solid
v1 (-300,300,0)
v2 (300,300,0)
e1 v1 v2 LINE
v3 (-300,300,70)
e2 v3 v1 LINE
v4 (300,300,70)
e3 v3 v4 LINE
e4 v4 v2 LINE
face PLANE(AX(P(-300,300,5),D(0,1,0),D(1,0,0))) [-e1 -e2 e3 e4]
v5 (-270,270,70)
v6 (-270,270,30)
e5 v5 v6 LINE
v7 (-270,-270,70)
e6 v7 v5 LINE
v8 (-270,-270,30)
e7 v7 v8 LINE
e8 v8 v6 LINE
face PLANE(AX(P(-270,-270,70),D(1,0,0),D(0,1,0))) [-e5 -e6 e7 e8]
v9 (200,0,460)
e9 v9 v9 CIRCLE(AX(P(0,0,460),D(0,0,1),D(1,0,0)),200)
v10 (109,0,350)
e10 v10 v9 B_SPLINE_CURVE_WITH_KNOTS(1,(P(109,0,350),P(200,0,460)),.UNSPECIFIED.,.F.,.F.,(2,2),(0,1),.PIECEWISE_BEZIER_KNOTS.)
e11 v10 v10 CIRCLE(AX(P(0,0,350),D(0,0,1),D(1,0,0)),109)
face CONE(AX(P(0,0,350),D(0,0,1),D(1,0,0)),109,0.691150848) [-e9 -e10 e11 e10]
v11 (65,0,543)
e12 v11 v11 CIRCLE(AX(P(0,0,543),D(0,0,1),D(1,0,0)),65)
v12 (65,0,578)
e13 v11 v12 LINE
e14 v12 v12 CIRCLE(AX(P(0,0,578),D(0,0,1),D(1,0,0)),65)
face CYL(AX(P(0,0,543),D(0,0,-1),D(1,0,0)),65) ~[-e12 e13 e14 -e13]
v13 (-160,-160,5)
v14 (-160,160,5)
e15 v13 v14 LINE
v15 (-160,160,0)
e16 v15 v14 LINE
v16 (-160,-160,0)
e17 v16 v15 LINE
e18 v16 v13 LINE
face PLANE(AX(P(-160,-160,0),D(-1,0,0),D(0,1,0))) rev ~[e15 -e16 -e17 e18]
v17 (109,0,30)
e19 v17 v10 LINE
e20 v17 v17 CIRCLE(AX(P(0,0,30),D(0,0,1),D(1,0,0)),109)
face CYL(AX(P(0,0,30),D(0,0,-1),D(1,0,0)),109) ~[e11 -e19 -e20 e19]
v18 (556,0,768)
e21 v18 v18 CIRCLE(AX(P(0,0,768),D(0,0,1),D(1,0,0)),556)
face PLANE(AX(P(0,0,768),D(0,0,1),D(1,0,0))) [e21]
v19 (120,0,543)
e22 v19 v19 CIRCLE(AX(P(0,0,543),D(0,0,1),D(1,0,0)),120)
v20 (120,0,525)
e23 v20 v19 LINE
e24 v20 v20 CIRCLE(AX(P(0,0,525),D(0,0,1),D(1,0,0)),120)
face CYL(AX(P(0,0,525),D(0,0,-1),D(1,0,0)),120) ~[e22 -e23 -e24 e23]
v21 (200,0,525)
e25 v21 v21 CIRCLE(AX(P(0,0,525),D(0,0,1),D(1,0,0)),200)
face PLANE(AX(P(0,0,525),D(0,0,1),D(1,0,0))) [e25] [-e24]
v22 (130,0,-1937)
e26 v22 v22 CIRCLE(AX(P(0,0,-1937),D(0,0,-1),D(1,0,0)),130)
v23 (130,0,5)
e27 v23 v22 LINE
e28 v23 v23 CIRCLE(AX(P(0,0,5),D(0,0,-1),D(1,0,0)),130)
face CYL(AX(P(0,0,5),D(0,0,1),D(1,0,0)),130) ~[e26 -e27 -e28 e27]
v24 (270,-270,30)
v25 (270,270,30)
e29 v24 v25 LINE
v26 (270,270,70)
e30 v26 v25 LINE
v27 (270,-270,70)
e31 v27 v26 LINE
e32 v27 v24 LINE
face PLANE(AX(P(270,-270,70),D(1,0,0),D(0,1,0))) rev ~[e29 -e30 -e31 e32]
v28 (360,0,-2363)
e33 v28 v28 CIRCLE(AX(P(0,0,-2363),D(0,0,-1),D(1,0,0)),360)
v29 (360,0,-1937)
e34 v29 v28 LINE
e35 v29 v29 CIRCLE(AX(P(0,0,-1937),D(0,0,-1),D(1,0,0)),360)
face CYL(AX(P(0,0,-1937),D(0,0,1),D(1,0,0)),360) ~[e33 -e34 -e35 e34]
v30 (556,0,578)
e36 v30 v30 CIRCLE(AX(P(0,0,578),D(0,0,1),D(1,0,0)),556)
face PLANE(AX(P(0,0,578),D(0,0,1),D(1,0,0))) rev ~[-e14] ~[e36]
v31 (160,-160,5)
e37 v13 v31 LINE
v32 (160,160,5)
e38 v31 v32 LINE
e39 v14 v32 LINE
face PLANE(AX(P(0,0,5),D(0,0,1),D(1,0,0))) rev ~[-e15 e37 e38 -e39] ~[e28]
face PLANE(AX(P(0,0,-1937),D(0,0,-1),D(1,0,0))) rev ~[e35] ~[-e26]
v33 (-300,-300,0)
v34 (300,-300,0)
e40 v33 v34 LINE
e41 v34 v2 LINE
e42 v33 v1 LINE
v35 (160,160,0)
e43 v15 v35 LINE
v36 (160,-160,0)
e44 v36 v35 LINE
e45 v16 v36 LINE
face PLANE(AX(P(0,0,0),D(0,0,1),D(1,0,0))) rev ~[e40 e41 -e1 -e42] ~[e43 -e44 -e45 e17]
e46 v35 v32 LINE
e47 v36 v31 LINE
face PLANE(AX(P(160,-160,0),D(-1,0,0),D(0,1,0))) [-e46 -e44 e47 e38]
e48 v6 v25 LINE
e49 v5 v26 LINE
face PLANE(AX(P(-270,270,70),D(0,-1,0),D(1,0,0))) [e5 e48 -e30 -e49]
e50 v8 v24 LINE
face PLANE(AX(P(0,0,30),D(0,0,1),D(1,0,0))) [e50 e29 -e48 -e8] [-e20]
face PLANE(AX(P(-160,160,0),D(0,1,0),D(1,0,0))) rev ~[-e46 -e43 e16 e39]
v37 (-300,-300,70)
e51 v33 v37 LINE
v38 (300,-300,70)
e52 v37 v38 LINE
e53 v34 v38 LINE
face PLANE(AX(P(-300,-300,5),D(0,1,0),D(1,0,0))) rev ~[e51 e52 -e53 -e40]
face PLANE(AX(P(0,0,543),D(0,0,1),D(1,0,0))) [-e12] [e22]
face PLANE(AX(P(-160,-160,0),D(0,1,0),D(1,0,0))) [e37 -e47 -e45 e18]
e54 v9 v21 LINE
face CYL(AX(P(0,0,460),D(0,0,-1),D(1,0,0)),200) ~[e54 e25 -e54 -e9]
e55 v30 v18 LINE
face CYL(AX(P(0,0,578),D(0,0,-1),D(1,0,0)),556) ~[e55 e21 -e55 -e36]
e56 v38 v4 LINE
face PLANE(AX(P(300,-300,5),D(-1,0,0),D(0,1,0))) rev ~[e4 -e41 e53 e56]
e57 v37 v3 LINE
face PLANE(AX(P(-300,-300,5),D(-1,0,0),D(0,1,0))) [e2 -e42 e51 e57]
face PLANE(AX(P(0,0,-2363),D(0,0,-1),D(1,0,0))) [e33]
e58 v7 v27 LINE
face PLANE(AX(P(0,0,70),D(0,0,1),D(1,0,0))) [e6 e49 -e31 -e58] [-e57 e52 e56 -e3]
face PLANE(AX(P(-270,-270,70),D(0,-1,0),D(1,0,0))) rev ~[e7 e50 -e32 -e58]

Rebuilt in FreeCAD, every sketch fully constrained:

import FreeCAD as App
import Part
import Sketcher
Q = App.Units.Quantity

doc = App.newDocument("Part")
body = doc.addObject("PartDesign::Body", "Body")

sketch1 = doc.addObject("Sketcher::SketchObject", "Sketch")
body.addObject(sketch1)
sketch1.AttachmentSupport = (doc.XY_Plane, [""])
sketch1.MapMode = "FlatFace"
sketch1.addGeometry(Part.LineSegment(App.Vector(-300, 300, 0), App.Vector(-300, -300, 0)), False)
sketch1.addGeometry(Part.LineSegment(App.Vector(-300, -300, 0), App.Vector(300, -300, 0)), False)
sketch1.addGeometry(Part.LineSegment(App.Vector(300, -300, 0), App.Vector(300, 300, 0)), False)
sketch1.addGeometry(Part.LineSegment(App.Vector(300, 300, 0), App.Vector(-300, 300, 0)), False)
sketch1.addGeometry(Part.LineSegment(App.Vector(160, -160, 0), App.Vector(-160, -160, 0)), False)
sketch1.addGeometry(Part.LineSegment(App.Vector(-160, -160, 0), App.Vector(-160, 160, 0)), False)
sketch1.addGeometry(Part.LineSegment(App.Vector(-160, 160, 0), App.Vector(160, 160, 0)), False)
sketch1.addGeometry(Part.LineSegment(App.Vector(160, 160, 0), App.Vector(160, -160, 0)), False)
sketch1.addConstraint(Sketcher.Constraint("Coincident", 0, 2, 1, 1))
sketch1.addConstraint(Sketcher.Constraint("Coincident", 1, 2, 2, 1))
sketch1.addConstraint(Sketcher.Constraint("Coincident", 2, 2, 3, 1))
sketch1.addConstraint(Sketcher.Constraint("Coincident", 3, 2, 0, 1))
sketch1.addConstraint(Sketcher.Constraint("Coincident", 4, 2, 5, 1))
sketch1.addConstraint(Sketcher.Constraint("Coincident", 5, 2, 6, 1))
sketch1.addConstraint(Sketcher.Constraint("Coincident", 6, 2, 7, 1))
sketch1.addConstraint(Sketcher.Constraint("Coincident", 7, 2, 4, 1))
sketch1.addConstraint(Sketcher.Constraint("Vertical", 0))
sketch1.addConstraint(Sketcher.Constraint("Horizontal", 1))
sketch1.addConstraint(Sketcher.Constraint("Vertical", 2))
sketch1.addConstraint(Sketcher.Constraint("Horizontal", 3))
sketch1.addConstraint(Sketcher.Constraint("Horizontal", 4))
sketch1.addConstraint(Sketcher.Constraint("Vertical", 5))
sketch1.addConstraint(Sketcher.Constraint("Horizontal", 6))
sketch1.addConstraint(Sketcher.Constraint("Vertical", 7))
sketch1.addConstraint(Sketcher.Constraint("Symmetric", 0, 2, 2, 2, -1, 1))
sketch1.addConstraint(Sketcher.Constraint("Symmetric", 4, 2, 6, 2, -1, 1))
sketch1.addConstraint(Sketcher.Constraint("Equal", 3, 0))
sketch1.addConstraint(Sketcher.Constraint("Equal", 6, 5))
sketch1.addConstraint(Sketcher.Constraint("DistanceX", 1, 1, 1, 2, Q("600 mm")))
sketch1.addConstraint(Sketcher.Constraint("DistanceX", 4, 2, 4, 1, Q("320 mm")))
pad1 = doc.addObject("PartDesign::Pad", "Pad")
body.addObject(pad1)
pad1.Profile = sketch1
pad1.Length = 5

sketch2 = doc.addObject("Sketcher::SketchObject", "Sketch001")
body.addObject(sketch2)
sketch2.AttachmentSupport = (doc.XY_Plane, [""])
sketch2.MapMode = "FlatFace"
sketch2.AttachmentOffset = App.Placement(App.Vector(0, 0, 5), App.Rotation())
sketch2.addGeometry(Part.LineSegment(App.Vector(-300, 300, 0), App.Vector(-300, -300, 0)), False)
sketch2.addGeometry(Part.LineSegment(App.Vector(-300, -300, 0), App.Vector(300, -300, 0)), False)
sketch2.addGeometry(Part.LineSegment(App.Vector(300, -300, 0), App.Vector(300, 300, 0)), False)
sketch2.addGeometry(Part.LineSegment(App.Vector(300, 300, 0), App.Vector(-300, 300, 0)), False)
sketch2.addConstraint(Sketcher.Constraint("Coincident", 0, 2, 1, 1))
sketch2.addConstraint(Sketcher.Constraint("Coincident", 1, 2, 2, 1))
sketch2.addConstraint(Sketcher.Constraint("Coincident", 2, 2, 3, 1))
sketch2.addConstraint(Sketcher.Constraint("Coincident", 3, 2, 0, 1))
sketch2.addConstraint(Sketcher.Constraint("Vertical", 0))
sketch2.addConstraint(Sketcher.Constraint("Horizontal", 1))
sketch2.addConstraint(Sketcher.Constraint("Vertical", 2))
sketch2.addConstraint(Sketcher.Constraint("Horizontal", 3))
sketch2.addConstraint(Sketcher.Constraint("Symmetric", 0, 2, 2, 2, -1, 1))
sketch2.addConstraint(Sketcher.Constraint("Equal", 3, 0))
sketch2.addConstraint(Sketcher.Constraint("DistanceX", 1, 1, 1, 2, Q("600 mm")))
pad2 = doc.addObject("PartDesign::Pad", "Pad001")
body.addObject(pad2)
pad2.Profile = sketch2
pad2.Length = 65

sketch3 = doc.addObject("Sketcher::SketchObject", "Sketch002")
body.addObject(sketch3)
sketch3.AttachmentSupport = (doc.XY_Plane, [""])
sketch3.MapMode = "FlatFace"
sketch3.AttachmentOffset = App.Placement(App.Vector(0, 0, 70), App.Rotation())
sketch3.addGeometry(Part.LineSegment(App.Vector(-270, 270, 0), App.Vector(-270, -270, 0)), False)
sketch3.addGeometry(Part.LineSegment(App.Vector(-270, -270, 0), App.Vector(270, -270, 0)), False)
sketch3.addGeometry(Part.LineSegment(App.Vector(270, -270, 0), App.Vector(270, 270, 0)), False)
sketch3.addGeometry(Part.LineSegment(App.Vector(270, 270, 0), App.Vector(-270, 270, 0)), False)
sketch3.addConstraint(Sketcher.Constraint("Coincident", 0, 2, 1, 1))
sketch3.addConstraint(Sketcher.Constraint("Coincident", 1, 2, 2, 1))
sketch3.addConstraint(Sketcher.Constraint("Coincident", 2, 2, 3, 1))
sketch3.addConstraint(Sketcher.Constraint("Coincident", 3, 2, 0, 1))
sketch3.addConstraint(Sketcher.Constraint("Vertical", 0))
sketch3.addConstraint(Sketcher.Constraint("Horizontal", 1))
sketch3.addConstraint(Sketcher.Constraint("Vertical", 2))
sketch3.addConstraint(Sketcher.Constraint("Horizontal", 3))
sketch3.addConstraint(Sketcher.Constraint("Symmetric", 0, 2, 2, 2, -1, 1))
sketch3.addConstraint(Sketcher.Constraint("Equal", 3, 0))
sketch3.addConstraint(Sketcher.Constraint("DistanceX", 1, 1, 1, 2, Q("540 mm")))
pocket1 = doc.addObject("PartDesign::Pocket", "Pocket")
body.addObject(pocket1)
pocket1.Profile = sketch3
pocket1.Length = 40

sketch4 = doc.addObject("Sketcher::SketchObject", "Sketch003")
body.addObject(sketch4)
sketch4.AttachmentSupport = (doc.XY_Plane, [""])
sketch4.MapMode = "FlatFace"
sketch4.AttachmentOffset = App.Placement(App.Vector(0, 0, 30), App.Rotation())
sketch4.addGeometry(Part.Circle(App.Vector(0, 0, 0), App.Vector(0, 0, 1), 109), False)
sketch4.addConstraint(Sketcher.Constraint("Coincident", 0, 3, -1, 1))
sketch4.addConstraint(Sketcher.Constraint("Diameter", 0, Q("218 mm")))
pad3 = doc.addObject("PartDesign::Pad", "Pad002")
body.addObject(pad3)
pad3.Profile = sketch4
pad3.Length = 320

sketch5 = doc.addObject("Sketcher::SketchObject", "Sketch004")
body.addObject(sketch5)
sketch5.AttachmentSupport = (doc.XY_Plane, [""])
sketch5.MapMode = "FlatFace"
sketch5.AttachmentOffset = App.Placement(App.Vector(0, 0, 350), App.Rotation())
sketch5.addGeometry(Part.Circle(App.Vector(0, 0, 0), App.Vector(0, 0, 1), 109), False)
sketch5.addConstraint(Sketcher.Constraint("Coincident", 0, 3, -1, 1))
sketch5.addConstraint(Sketcher.Constraint("Diameter", 0, Q("218 mm")))

sketch6 = doc.addObject("Sketcher::SketchObject", "Sketch005")
body.addObject(sketch6)
sketch6.AttachmentSupport = (doc.XY_Plane, [""])
sketch6.MapMode = "FlatFace"
sketch6.AttachmentOffset = App.Placement(App.Vector(0, 0, 460), App.Rotation())
sketch6.addGeometry(Part.Circle(App.Vector(0, 0, 0), App.Vector(0, 0, 1), 200), False)
sketch6.addConstraint(Sketcher.Constraint("Coincident", 0, 3, -1, 1))
sketch6.addConstraint(Sketcher.Constraint("Diameter", 0, Q("400 mm")))

additiveloft = doc.addObject("PartDesign::AdditiveLoft", "AdditiveLoft")
body.addObject(additiveloft)
additiveloft.Profile = sketch5
additiveloft.Sections = [sketch6]

sketch7 = doc.addObject("Sketcher::SketchObject", "Sketch006")
body.addObject(sketch7)
sketch7.AttachmentSupport = (doc.XY_Plane, [""])
sketch7.MapMode = "FlatFace"
sketch7.AttachmentOffset = App.Placement(App.Vector(0, 0, 460), App.Rotation())
sketch7.addGeometry(Part.Circle(App.Vector(0, 0, 0), App.Vector(0, 0, 1), 200), False)
sketch7.addConstraint(Sketcher.Constraint("Coincident", 0, 3, -1, 1))
sketch7.addConstraint(Sketcher.Constraint("Diameter", 0, Q("400 mm")))
pad4 = doc.addObject("PartDesign::Pad", "Pad003")
body.addObject(pad4)
pad4.Profile = sketch7
pad4.Length = 65

sketch8 = doc.addObject("Sketcher::SketchObject", "Sketch007")
body.addObject(sketch8)
sketch8.AttachmentSupport = (doc.XY_Plane, [""])
sketch8.MapMode = "FlatFace"
sketch8.AttachmentOffset = App.Placement(App.Vector(0, 0, 525), App.Rotation())
sketch8.addGeometry(Part.Circle(App.Vector(0, 0, 0), App.Vector(0, 0, 1), 120), False)
sketch8.addConstraint(Sketcher.Constraint("Coincident", 0, 3, -1, 1))
sketch8.addConstraint(Sketcher.Constraint("Diameter", 0, Q("240 mm")))
pad5 = doc.addObject("PartDesign::Pad", "Pad004")
body.addObject(pad5)
pad5.Profile = sketch8
pad5.Length = 18

sketch9 = doc.addObject("Sketcher::SketchObject", "Sketch008")
body.addObject(sketch9)
sketch9.AttachmentSupport = (doc.XY_Plane, [""])
sketch9.MapMode = "FlatFace"
sketch9.AttachmentOffset = App.Placement(App.Vector(0, 0, 543), App.Rotation())
sketch9.addGeometry(Part.Circle(App.Vector(0, 0, 0), App.Vector(0, 0, 1), 65), False)
sketch9.addConstraint(Sketcher.Constraint("Coincident", 0, 3, -1, 1))
sketch9.addConstraint(Sketcher.Constraint("Diameter", 0, Q("130 mm")))
pad6 = doc.addObject("PartDesign::Pad", "Pad005")
body.addObject(pad6)
pad6.Profile = sketch9
pad6.Length = 35

sketch10 = doc.addObject("Sketcher::SketchObject", "Sketch009")
body.addObject(sketch10)
sketch10.AttachmentSupport = (doc.XY_Plane, [""])
sketch10.MapMode = "FlatFace"
sketch10.AttachmentOffset = App.Placement(App.Vector(0, 0, 578), App.Rotation())
sketch10.addGeometry(Part.Circle(App.Vector(0, 0, 0), App.Vector(0, 0, 1), 556), False)
sketch10.addConstraint(Sketcher.Constraint("Coincident", 0, 3, -1, 1))
sketch10.addConstraint(Sketcher.Constraint("Diameter", 0, Q("1112 mm")))
pad7 = doc.addObject("PartDesign::Pad", "Pad006")
body.addObject(pad7)
pad7.Profile = sketch10
pad7.Length = 190

sketch11 = doc.addObject("Sketcher::SketchObject", "Sketch010")
body.addObject(sketch11)
sketch11.AttachmentSupport = (doc.XY_Plane, [""])
sketch11.MapMode = "FlatFace"
sketch11.AttachmentOffset = App.Placement(App.Vector(0, 0, 5), App.Rotation())
sketch11.addGeometry(Part.Circle(App.Vector(0, 0, 0), App.Vector(0, 0, 1), 130), False)
sketch11.addConstraint(Sketcher.Constraint("Coincident", 0, 3, -1, 1))
sketch11.addConstraint(Sketcher.Constraint("Diameter", 0, Q("260 mm")))
pad8 = doc.addObject("PartDesign::Pad", "Pad007")
body.addObject(pad8)
pad8.Profile = sketch11
pad8.Length = 1942
pad8.Reversed = True

sketch12 = doc.addObject("Sketcher::SketchObject", "Sketch011")
body.addObject(sketch12)
sketch12.AttachmentSupport = (doc.XY_Plane, [""])
sketch12.MapMode = "FlatFace"
sketch12.AttachmentOffset = App.Placement(App.Vector(0, 0, -1937), App.Rotation())
sketch12.addGeometry(Part.Circle(App.Vector(0, 0, 0), App.Vector(0, 0, 1), 360), False)
sketch12.addConstraint(Sketcher.Constraint("Coincident", 0, 3, -1, 1))
sketch12.addConstraint(Sketcher.Constraint("Diameter", 0, Q("720 mm")))
pad9 = doc.addObject("PartDesign::Pad", "Pad008")
body.addObject(pad9)
pad9.Profile = sketch12
pad9.Length = 426
pad9.Reversed = True

doc.recompute()
